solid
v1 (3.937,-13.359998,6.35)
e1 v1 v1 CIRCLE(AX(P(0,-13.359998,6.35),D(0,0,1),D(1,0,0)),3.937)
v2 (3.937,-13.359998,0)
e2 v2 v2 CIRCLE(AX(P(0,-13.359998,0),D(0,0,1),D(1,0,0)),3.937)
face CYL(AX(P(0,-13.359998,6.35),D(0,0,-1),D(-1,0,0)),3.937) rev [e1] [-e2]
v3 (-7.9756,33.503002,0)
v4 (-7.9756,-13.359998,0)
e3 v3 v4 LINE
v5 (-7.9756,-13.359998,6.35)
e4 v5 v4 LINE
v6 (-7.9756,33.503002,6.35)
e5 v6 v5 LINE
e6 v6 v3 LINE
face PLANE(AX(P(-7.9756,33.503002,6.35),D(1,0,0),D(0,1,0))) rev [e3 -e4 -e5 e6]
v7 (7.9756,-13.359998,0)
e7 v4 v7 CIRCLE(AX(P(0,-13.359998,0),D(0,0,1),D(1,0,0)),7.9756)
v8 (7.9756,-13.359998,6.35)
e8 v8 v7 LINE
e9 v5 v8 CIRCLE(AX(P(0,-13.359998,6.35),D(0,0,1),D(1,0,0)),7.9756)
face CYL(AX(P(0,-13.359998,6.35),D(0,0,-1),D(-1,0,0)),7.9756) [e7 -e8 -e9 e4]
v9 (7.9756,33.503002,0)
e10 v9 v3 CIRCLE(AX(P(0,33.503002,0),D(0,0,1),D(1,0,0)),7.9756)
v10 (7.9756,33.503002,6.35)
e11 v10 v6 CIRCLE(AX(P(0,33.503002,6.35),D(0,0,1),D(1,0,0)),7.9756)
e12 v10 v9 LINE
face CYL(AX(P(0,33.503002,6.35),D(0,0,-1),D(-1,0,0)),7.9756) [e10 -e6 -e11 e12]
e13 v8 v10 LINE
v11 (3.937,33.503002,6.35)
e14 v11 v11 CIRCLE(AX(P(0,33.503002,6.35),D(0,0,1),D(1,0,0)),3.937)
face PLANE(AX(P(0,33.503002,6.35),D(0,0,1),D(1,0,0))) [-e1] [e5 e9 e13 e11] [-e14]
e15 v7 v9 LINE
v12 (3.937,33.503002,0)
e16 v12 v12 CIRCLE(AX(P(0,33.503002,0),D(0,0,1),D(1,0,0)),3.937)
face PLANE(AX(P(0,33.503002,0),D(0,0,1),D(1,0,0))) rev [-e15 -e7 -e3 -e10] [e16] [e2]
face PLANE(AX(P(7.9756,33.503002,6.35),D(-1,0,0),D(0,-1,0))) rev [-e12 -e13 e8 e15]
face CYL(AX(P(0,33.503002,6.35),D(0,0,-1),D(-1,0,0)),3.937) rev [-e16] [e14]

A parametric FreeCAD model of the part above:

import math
import FreeCAD as App
import Part
import Sketcher
from FreeCAD import Vector
Q = App.Units.Quantity

doc = App.newDocument("Part")
params = doc.addObject("Spreadsheet::Sheet", "Params")
for row, (alias, value) in enumerate([
    ("sketch1_diameter", "0.31 in"),
    ("sketch1_radius", "0.314 in"),
    ("sketch1_height", "1.845 in"),
    ("pad1_length", "0.25 in"),
], start=1):
    params.set(f"A{row}", alias)
    params.set(f"B{row}", "=" + value)
    params.setAlias(f"B{row}", alias)

body = doc.addObject("PartDesign::Body", "Body")

# Sketch on XY plane
sketch1 = body.newObject("Sketcher::SketchObject", "Sketch")
sketch1.AttachmentSupport = (doc.getObject("XY_Plane"), [""])
sketch1.MapMode = "FlatFace"
sketch1.addGeometry([
    Part.LineSegment(Vector(8, -13.4, 0), Vector(8, 33.5, 0)),  # 0
    Part.ArcOfCircle(Part.Circle(Vector(0, 33.5, 0), Vector(0, 0, 1), 8), math.radians(0), math.radians(180)),  # 1
    Part.LineSegment(Vector(-8, 33.5, 0), Vector(-8, -13.4, 0)),  # 2
    Part.ArcOfCircle(Part.Circle(Vector(0, -13.4, 0), Vector(0, 0, 1), 8), math.radians(180), math.radians(360)),  # 3
    Part.Circle(Vector(0, -13.4, 0), Vector(0, 0, 1), 3.9),  # 4
    Part.Circle(Vector(0, 33.5, 0), Vector(0, 0, 1), 3.9),  # 5
], False)
sketch1.addConstraint([
    Sketcher.Constraint("Tangent", 0, 2, 1, 1),
    Sketcher.Constraint("Tangent", 1, 2, 2, 1),
    Sketcher.Constraint("Tangent", 2, 2, 3, 1),
    Sketcher.Constraint("Tangent", 3, 2, 0, 1),
    Sketcher.Constraint("Vertical", 0),
    Sketcher.Constraint("Vertical", 2),
    Sketcher.Constraint("Coincident", 4, 3, 3, 3),
    Sketcher.Constraint("Coincident", 5, 3, 1, 3),
    Sketcher.Constraint("Equal", 4, 5),
    Sketcher.Constraint("PointOnObject", 1, 3, -2),
    Sketcher.Constraint("Diameter", 4, Q("0.31 in")),
    Sketcher.Constraint("Radius", 1, Q("0.314 in")),
    Sketcher.Constraint("DistanceY", 0, 1, 0, 2, Q("1.845 in")),
    Sketcher.Constraint("DistanceY", -1, 1, 1, 3, Q("33.503002 mm")),
])
sketch1.setExpression("Constraints[10]", "Params.sketch1_diameter")
sketch1.setExpression("Constraints[11]", "Params.sketch1_radius")
sketch1.setExpression("Constraints[12]", "Params.sketch1_height")
pad1 = body.newObject("PartDesign::Pad", "Pad")
pad1.Profile = sketch1
pad1.setExpression("Length", "Params.pad1_length")

doc.recompute()
